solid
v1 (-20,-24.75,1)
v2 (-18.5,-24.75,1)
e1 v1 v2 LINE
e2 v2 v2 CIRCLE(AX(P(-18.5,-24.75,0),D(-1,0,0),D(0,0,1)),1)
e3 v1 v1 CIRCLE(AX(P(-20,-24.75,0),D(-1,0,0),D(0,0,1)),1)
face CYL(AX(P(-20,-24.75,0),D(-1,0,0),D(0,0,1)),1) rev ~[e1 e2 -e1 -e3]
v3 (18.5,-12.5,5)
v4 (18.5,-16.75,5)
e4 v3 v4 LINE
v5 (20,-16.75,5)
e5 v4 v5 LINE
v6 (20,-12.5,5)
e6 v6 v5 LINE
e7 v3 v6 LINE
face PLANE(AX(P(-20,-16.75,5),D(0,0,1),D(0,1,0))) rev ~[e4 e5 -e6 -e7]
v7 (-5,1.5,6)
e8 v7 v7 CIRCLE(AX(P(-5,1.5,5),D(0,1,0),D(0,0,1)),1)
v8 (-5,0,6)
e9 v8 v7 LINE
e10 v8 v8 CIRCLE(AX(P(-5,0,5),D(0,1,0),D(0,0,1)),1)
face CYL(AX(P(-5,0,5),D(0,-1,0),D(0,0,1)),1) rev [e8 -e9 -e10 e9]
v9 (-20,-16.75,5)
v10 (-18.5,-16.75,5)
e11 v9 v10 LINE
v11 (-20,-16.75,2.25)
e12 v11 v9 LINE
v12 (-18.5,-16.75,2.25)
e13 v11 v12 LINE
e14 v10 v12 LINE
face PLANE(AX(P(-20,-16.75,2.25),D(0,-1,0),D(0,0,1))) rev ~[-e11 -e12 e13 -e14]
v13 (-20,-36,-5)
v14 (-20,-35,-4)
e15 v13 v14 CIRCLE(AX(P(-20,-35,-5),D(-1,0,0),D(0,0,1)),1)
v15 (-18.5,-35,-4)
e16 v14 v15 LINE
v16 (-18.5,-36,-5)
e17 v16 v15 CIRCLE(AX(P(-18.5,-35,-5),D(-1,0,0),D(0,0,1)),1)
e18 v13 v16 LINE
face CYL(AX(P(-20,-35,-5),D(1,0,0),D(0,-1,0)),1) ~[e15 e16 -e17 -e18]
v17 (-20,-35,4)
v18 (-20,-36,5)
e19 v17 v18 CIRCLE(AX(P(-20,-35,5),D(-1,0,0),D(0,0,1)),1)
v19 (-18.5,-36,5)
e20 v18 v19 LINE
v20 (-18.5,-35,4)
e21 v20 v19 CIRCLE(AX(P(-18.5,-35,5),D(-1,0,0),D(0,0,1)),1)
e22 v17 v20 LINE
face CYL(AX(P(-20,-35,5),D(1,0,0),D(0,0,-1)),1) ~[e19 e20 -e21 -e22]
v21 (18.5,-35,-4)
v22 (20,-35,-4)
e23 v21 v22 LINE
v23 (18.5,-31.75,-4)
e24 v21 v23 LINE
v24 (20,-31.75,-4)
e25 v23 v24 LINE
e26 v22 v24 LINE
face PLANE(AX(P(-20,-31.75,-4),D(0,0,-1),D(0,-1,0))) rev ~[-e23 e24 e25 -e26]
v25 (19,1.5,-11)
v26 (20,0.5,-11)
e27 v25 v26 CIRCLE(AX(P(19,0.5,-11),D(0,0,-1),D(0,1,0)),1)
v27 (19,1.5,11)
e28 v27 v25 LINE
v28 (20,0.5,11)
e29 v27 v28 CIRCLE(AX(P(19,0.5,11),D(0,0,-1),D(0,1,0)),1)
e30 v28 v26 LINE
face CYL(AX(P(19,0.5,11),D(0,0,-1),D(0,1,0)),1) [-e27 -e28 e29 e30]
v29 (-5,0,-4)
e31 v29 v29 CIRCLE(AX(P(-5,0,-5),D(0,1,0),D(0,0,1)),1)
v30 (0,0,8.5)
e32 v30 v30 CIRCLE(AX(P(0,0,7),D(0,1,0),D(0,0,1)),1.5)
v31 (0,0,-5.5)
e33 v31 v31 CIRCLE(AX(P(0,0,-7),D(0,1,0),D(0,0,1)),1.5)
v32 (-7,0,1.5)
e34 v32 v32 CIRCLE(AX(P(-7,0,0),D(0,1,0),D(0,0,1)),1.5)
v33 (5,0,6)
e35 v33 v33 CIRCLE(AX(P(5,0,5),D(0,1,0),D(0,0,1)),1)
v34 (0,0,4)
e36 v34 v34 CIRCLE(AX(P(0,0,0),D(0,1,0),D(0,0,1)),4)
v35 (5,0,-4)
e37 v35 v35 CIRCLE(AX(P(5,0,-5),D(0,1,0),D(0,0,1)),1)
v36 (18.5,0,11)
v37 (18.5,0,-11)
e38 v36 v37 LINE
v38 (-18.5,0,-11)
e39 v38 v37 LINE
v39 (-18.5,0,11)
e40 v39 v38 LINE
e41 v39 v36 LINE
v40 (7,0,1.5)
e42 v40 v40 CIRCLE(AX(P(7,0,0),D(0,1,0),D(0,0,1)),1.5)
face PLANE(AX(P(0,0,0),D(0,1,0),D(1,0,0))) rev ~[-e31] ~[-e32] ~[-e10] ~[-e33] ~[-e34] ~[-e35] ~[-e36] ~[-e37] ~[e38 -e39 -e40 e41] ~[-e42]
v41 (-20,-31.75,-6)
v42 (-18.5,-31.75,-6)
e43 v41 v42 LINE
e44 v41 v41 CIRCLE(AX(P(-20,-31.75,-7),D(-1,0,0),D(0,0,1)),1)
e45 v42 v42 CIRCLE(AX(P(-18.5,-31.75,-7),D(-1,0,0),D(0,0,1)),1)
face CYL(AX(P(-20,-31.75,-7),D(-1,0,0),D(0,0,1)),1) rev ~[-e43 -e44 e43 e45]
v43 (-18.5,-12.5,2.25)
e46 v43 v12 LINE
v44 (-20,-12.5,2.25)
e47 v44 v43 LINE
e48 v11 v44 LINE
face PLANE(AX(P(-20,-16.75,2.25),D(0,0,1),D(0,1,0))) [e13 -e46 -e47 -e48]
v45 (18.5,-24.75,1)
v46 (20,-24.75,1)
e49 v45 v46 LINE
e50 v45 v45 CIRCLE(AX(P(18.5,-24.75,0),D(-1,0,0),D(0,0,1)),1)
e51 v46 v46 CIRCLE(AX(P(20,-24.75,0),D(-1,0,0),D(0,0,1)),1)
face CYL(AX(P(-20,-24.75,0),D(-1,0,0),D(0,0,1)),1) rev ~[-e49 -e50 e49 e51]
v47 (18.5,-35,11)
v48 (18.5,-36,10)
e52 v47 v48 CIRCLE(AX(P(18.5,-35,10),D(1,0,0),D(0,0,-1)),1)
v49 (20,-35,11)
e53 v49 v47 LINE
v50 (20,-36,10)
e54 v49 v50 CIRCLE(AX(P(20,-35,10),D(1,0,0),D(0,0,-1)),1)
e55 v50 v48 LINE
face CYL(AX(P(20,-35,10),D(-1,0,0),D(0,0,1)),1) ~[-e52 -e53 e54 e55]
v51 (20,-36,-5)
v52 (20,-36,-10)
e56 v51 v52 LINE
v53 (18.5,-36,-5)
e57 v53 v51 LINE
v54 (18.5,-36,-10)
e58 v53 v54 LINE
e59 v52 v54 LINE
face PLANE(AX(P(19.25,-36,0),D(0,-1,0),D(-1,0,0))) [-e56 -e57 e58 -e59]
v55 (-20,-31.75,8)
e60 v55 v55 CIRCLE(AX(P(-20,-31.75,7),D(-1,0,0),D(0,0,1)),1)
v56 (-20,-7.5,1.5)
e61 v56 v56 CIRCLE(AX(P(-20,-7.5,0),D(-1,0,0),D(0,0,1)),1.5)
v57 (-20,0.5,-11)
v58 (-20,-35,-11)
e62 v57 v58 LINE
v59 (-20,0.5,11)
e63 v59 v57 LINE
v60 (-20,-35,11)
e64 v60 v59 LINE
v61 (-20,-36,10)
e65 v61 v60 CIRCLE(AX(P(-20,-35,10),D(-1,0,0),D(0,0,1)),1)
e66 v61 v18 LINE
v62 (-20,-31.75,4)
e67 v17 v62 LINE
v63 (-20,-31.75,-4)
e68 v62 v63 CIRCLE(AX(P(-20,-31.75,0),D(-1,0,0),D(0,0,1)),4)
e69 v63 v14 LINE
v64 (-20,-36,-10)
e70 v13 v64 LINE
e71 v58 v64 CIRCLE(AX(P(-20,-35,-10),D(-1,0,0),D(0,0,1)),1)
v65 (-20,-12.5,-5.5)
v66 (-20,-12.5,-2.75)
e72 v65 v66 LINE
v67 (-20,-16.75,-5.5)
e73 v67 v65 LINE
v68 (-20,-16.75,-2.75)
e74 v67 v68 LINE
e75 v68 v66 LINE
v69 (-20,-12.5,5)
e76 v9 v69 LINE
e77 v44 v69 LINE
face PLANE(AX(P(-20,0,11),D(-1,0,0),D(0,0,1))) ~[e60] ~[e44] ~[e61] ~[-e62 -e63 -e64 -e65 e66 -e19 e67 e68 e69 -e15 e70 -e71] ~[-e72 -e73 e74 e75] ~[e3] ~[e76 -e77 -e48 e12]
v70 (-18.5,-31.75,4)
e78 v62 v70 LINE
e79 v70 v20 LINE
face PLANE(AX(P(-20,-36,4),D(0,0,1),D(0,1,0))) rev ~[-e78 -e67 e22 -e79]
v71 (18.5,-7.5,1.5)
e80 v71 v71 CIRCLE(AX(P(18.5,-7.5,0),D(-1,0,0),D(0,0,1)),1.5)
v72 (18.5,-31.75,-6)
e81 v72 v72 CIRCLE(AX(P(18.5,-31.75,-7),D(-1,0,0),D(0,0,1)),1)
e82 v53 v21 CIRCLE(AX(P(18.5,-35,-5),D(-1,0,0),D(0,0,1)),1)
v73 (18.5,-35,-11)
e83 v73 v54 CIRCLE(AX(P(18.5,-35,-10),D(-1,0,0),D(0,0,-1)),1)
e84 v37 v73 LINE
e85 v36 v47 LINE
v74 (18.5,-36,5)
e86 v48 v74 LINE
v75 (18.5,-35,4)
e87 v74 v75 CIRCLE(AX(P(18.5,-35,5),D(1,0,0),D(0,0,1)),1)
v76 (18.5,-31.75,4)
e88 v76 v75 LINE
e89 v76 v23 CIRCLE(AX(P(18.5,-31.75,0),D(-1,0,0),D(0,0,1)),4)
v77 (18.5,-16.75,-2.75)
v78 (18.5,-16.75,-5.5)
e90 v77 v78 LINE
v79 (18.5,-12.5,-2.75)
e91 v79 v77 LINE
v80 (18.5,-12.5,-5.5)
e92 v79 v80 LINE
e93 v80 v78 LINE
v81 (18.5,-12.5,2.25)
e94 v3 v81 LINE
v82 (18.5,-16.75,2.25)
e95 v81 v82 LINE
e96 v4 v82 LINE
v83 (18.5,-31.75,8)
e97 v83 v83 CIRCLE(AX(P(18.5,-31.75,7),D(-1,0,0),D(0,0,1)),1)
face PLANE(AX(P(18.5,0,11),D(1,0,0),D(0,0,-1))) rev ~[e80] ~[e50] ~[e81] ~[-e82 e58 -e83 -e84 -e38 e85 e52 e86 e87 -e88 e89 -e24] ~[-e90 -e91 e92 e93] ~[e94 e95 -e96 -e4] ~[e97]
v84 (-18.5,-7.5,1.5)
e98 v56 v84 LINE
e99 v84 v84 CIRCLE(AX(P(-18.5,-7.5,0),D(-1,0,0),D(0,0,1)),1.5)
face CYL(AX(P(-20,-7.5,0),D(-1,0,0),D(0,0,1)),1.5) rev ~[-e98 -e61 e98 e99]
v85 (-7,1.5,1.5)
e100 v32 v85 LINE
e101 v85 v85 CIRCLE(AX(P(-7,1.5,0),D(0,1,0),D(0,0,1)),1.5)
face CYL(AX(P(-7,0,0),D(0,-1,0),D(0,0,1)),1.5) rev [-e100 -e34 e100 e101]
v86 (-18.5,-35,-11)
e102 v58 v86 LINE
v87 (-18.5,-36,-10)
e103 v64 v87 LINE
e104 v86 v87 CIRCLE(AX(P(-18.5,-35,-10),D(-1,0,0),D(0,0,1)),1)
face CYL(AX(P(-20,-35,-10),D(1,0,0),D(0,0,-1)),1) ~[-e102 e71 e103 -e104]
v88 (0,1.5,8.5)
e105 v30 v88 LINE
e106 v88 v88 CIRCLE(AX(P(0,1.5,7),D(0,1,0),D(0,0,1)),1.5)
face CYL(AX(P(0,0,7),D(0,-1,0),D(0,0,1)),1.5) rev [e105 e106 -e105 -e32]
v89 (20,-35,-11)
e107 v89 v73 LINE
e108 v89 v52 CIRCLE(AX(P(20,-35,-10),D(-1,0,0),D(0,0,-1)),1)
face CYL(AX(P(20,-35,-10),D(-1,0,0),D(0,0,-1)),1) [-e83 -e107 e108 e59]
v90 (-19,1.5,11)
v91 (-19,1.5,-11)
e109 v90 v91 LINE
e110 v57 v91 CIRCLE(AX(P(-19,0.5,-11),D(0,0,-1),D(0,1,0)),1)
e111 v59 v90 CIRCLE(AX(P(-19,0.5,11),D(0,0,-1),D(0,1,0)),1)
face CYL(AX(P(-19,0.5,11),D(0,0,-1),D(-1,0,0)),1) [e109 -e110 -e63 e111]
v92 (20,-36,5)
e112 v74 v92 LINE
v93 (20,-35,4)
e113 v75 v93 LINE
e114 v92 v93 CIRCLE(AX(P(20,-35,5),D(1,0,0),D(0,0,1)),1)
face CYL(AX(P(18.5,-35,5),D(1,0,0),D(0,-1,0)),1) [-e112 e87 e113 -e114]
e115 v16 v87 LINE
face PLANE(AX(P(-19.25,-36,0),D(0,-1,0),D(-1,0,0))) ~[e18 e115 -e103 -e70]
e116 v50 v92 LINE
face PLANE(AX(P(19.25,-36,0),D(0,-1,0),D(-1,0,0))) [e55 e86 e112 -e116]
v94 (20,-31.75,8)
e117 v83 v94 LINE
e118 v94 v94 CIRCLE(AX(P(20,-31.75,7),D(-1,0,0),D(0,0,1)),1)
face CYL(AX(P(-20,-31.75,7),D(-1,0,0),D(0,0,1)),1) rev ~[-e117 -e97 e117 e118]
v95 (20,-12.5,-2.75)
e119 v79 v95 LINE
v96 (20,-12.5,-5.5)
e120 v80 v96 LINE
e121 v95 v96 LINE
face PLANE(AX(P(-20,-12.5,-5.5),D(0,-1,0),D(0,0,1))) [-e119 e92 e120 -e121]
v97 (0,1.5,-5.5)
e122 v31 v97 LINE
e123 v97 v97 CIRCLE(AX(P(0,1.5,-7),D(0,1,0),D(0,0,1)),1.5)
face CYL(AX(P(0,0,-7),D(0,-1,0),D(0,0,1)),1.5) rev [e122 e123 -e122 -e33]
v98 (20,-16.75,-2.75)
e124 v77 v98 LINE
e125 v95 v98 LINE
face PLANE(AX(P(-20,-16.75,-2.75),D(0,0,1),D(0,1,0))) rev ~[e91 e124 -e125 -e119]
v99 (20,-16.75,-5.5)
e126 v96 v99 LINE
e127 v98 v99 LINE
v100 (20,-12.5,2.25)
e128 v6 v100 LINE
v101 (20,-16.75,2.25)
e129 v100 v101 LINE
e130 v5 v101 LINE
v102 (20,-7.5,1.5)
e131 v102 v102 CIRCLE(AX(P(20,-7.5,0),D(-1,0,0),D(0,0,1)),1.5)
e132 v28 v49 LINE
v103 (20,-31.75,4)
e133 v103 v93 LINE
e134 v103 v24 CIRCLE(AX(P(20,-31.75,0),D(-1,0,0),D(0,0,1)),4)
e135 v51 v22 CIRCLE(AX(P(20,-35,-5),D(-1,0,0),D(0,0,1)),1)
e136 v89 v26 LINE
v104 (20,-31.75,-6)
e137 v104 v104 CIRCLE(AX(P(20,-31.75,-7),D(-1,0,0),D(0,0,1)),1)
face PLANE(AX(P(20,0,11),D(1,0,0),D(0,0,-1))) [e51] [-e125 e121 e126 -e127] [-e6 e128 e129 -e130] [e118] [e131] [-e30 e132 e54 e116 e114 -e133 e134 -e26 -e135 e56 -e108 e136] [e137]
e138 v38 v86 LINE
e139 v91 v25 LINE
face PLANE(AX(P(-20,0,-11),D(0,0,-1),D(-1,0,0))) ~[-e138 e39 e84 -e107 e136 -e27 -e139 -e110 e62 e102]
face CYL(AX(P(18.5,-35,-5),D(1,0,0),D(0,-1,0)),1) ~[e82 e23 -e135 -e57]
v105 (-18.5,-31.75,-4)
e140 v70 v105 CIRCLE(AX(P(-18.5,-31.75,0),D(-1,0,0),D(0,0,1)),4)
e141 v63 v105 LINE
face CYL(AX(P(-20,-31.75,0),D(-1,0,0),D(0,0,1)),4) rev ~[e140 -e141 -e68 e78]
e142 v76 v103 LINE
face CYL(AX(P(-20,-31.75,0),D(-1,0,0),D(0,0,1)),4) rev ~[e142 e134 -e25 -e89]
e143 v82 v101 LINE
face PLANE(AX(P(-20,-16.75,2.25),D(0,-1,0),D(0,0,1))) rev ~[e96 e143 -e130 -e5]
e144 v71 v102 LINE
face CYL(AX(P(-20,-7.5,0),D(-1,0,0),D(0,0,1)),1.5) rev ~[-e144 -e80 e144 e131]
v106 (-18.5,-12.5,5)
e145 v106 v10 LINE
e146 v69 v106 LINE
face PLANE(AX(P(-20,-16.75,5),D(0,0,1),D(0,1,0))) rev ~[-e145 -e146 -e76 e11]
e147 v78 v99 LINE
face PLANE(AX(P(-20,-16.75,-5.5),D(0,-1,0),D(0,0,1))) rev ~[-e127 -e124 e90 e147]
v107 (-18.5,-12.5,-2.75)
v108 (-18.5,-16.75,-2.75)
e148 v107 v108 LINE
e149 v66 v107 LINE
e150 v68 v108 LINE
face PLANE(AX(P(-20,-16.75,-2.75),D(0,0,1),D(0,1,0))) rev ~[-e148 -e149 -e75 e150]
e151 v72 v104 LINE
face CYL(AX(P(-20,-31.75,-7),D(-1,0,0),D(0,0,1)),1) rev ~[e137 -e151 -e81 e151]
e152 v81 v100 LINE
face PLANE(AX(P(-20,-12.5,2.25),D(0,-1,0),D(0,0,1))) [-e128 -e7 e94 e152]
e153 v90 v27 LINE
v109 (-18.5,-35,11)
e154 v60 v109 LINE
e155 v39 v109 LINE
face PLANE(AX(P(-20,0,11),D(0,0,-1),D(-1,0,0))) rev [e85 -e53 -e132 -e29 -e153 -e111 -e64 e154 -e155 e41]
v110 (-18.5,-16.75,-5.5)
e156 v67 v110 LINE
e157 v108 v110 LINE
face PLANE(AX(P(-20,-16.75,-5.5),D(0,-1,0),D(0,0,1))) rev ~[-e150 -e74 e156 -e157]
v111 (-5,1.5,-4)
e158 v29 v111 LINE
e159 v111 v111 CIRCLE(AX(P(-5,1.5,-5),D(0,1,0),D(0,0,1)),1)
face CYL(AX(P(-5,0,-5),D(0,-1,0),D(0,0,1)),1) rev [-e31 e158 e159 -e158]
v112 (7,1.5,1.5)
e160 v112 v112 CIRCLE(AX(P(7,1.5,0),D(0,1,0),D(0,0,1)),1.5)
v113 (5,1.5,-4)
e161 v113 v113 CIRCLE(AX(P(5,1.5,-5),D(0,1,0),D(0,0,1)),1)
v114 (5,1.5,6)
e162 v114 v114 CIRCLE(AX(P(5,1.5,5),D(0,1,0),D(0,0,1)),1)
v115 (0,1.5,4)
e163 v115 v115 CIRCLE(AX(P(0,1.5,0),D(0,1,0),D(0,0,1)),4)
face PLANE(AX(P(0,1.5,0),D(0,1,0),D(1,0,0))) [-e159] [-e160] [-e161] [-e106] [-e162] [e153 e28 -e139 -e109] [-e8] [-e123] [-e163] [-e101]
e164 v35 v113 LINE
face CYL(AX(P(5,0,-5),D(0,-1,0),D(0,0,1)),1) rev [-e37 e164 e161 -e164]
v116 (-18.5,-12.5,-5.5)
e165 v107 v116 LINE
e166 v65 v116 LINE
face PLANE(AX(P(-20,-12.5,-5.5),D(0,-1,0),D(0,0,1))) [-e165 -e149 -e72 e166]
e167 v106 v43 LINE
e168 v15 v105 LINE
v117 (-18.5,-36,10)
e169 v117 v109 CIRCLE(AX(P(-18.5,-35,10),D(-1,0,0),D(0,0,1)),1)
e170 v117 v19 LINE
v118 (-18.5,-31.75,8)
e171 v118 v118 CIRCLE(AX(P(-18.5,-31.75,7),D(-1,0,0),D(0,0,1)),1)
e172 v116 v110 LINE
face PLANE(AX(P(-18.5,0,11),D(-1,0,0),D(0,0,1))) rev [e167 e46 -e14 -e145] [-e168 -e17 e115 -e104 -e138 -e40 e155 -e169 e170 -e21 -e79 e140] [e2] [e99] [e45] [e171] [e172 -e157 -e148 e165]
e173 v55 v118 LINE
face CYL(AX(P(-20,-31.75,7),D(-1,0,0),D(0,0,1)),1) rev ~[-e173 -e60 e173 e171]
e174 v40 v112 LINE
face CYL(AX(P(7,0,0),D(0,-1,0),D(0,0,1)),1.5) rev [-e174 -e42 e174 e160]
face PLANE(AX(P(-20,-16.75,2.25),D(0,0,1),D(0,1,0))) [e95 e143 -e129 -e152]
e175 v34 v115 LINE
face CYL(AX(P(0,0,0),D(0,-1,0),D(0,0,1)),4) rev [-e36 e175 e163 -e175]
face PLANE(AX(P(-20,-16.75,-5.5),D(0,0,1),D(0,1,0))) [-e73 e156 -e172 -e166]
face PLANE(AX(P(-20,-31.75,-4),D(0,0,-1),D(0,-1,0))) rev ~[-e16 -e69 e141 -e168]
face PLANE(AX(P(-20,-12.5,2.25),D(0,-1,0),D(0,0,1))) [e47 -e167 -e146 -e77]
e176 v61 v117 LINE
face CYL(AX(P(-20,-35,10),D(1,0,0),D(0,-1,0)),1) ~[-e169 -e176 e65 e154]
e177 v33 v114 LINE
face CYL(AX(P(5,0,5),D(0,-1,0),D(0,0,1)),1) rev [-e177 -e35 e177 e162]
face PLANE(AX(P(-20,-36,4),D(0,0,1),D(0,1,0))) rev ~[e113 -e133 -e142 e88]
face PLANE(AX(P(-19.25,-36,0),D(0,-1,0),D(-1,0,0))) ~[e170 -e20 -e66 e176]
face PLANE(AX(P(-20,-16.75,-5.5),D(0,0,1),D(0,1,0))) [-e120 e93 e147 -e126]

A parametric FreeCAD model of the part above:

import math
import FreeCAD as App
import Part
import Sketcher
from FreeCAD import Vector
Q = App.Units.Quantity


def edges_at(feature, points):
    """Names of the edges that pass closest to the given points."""
    edges = feature.Shape.Edges
    near = lambda p: min(range(len(edges)), key=lambda i: edges[i].distToShape(Part.Vertex(*p))[0])
    return sorted({f"Edge{near(p) + 1}" for p in points})


def add_polygon(sketch, points):
    """Adds a closed chain of lines whose ends are joined by coincident constraints."""
    first, n = sketch.GeometryCount, len(points)
    for a, b in zip(points, points[1:] + points[:1]):
        sketch.addGeometry(Part.LineSegment(App.Vector(*a, 0), App.Vector(*b, 0)), False)
    for i in range(n):
        sketch.addConstraint(Sketcher.Constraint("Coincident", first + i, 2, first + (i + 1) % n, 1))

doc = App.newDocument("Part")
body = doc.addObject("PartDesign::Body", "Body")

sketch1 = body.newObject("Sketcher::SketchObject", "Sketch")
sketch1.AttachmentSupport = (doc.getObject("XZ_Plane"), [""])
sketch1.MapMode = "FlatFace"
add_polygon(sketch1, [(-20, -11), (-20, 11), (20, 11), (20, -11)])
sketch1.addGeometry(Part.Circle(Vector(-5, 5, 0), Vector(0, 0, 1), 1), False)
sketch1.addGeometry(Part.Circle(Vector(0, 7, 0), Vector(0, 0, 1), 1.5), False)
sketch1.addGeometry(Part.Circle(Vector(5, 5, 0), Vector(0, 0, 1), 1), False)
sketch1.addGeometry(Part.Circle(Vector(-7, 0, 0), Vector(0, 0, 1), 1.5), False)
sketch1.addGeometry(Part.Circle(Vector(-5, -5, 0), Vector(0, 0, 1), 1), False)
sketch1.addGeometry(Part.Circle(Vector(0, 0, 0), Vector(0, 0, 1), 4), False)
sketch1.addGeometry(Part.Circle(Vector(7, 0, 0), Vector(0, 0, 1), 1.5), False)
sketch1.addGeometry(Part.Circle(Vector(0, -7, 0), Vector(0, 0, 1), 1.5), False)
sketch1.addGeometry(Part.Circle(Vector(5, -5, 0), Vector(0, 0, 1), 1), False)
sketch1.addConstraint([
    Sketcher.Constraint("Vertical", 0),
    Sketcher.Constraint("Horizontal", 1),
    Sketcher.Constraint("Vertical", 2),
    Sketcher.Constraint("Horizontal", 3),
    Sketcher.Constraint("Coincident", 9, 3, -1, 1),
    Sketcher.Constraint("Equal", 4, 6),
    Sketcher.Constraint("Equal", 5, 7),
    Sketcher.Constraint("Equal", 6, 8),
    Sketcher.Constraint("Equal", 7, 10),
    Sketcher.Constraint("Equal", 10, 11),
    Sketcher.Constraint("Equal", 8, 12),
    Sketcher.Constraint("Symmetric", 6, 3, 8, 3, -1, 1),
    Sketcher.Constraint("Symmetric", 7, 3, 10, 3, -1, 1),
    Sketcher.Constraint("Symmetric", 5, 3, 11, 3, -1, 1),
    Sketcher.Constraint("Symmetric", 4, 3, 12, 3, -1, 1),
    Sketcher.Constraint("Symmetric", 0, 2, 2, 2, -1, 1),
    Sketcher.Constraint("Symmetric", 4, 3, 6, 3, -2),
    Sketcher.Constraint("PointOnObject", 5, 3, -2),
    Sketcher.Constraint("PointOnObject", 7, 3, -1),
    Sketcher.Constraint("Diameter", 4, Q("2 mm")),
    Sketcher.Constraint("Diameter", 5, Q("3 mm")),
    Sketcher.Constraint("Diameter", 9, Q("8 mm")),
    Sketcher.Constraint("DistanceX", 1, 1, 1, 2, Q("40 mm")),
    Sketcher.Constraint("DistanceY", 0, 1, 0, 2, Q("22 mm")),
    Sketcher.Constraint("DistanceX", 4, 3, -1, 1, Q("5 mm")),
    Sketcher.Constraint("DistanceY", -1, 1, 4, 3, Q("5 mm")),
    Sketcher.Constraint("DistanceY", -1, 1, 5, 3, Q("7 mm")),
    Sketcher.Constraint("DistanceX", 7, 3, -1, 1, Q("7 mm")),
])
pad1 = body.newObject("PartDesign::Pad", "Pad")
pad1.Profile = sketch1
pad1.Length = 1.5
pad1.Reversed = True

sketch2 = body.newObject("Sketcher::SketchObject", "Sketch001")
sketch2.AttachmentSupport = (doc.getObject("XZ_Plane"), [""])
sketch2.MapMode = "FlatFace"
add_polygon(sketch2, [(20, -11), (20, 11), (18.5, 11), (18.5, -11)])
sketch2.addConstraint([
    Sketcher.Constraint("Vertical", 0),
    Sketcher.Constraint("Horizontal", 1),
    Sketcher.Constraint("Vertical", 2),
    Sketcher.Constraint("Horizontal", 3),
    Sketcher.Constraint("DistanceY", 0, 1, 0, 2, Q("22 mm")),
    Sketcher.Constraint("DistanceX", 1, 2, 1, 1, Q("1.5 mm")),
    Sketcher.Constraint("DistanceX", -1, 1, 0, 2, Q("20 mm")),
    Sketcher.Constraint("DistanceY", -1, 1, 0, 2, Q("11 mm")),
])
pad2 = body.newObject("PartDesign::Pad", "Pad001")
pad2.Profile = sketch2
pad2.Length = 36
doc.recompute()

mirrored = body.newObject("PartDesign::Mirrored", "Mirrored")
mirrored.Originals = [pad2]
mirrored.MirrorPlane = (doc.getObject("YZ_Plane"), [""])
body.Tip = mirrored
doc.recompute()

fillet = body.newObject("PartDesign::Fillet", "Fillet")
fillet.Base = (mirrored, edges_at(mirrored, [(-20, 1.5, 0), (20, 1.5, 0)]))
fillet.Radius = 1

sketch3 = body.newObject("Sketcher::SketchObject", "Sketch002")
sketch3.AttachmentSupport = (doc.getObject("YZ_Plane"), [""])
sketch3.MapMode = "FlatFace"
sketch3.AttachmentOffset = App.Placement(Vector(0, 0, -20), App.Rotation())
sketch3.addGeometry(Part.Circle(Vector(-7.5, 0, 0), Vector(0, 0, 1), 1.5), False)
sketch3.addGeometry(Part.Circle(Vector(-24.8, 0, 0), Vector(0, 0, 1), 1), False)
sketch3.addGeometry(Part.Circle(Vector(-31.8, -7, 0), Vector(0, 0, 1), 1), False)
sketch3.addGeometry(Part.Circle(Vector(-31.8, 7, 0), Vector(0, 0, 1), 1), False)
sketch3.addGeometry(Part.LineSegment(Vector(-31.8, -4, 0), Vector(-36, -4, 0)), False)
sketch3.addGeometry(Part.LineSegment(Vector(-36, -4, 0), Vector(-36, 4, 0)), False)
sketch3.addGeometry(Part.LineSegment(Vector(-36, 4, 0), Vector(-31.8, 4, 0)), False)
sketch3.addGeometry(Part.ArcOfCircle(Part.Circle(Vector(-31.8, 0, 0), Vector(0, 0, 1), 4), math.radians(-90), math.radians(90)), False)
add_polygon(sketch3, [(-12.5, -5.5), (-16.8, -5.5), (-16.8, -2.8), (-12.5, -2.8)])
add_polygon(sketch3, [(-12.5, 2.2), (-16.8, 2.2), (-16.8, 5), (-12.5, 5)])
sketch3.addConstraint([
    Sketcher.Constraint("Coincident", 4, 2, 5, 1),
    Sketcher.Constraint("Coincident", 5, 2, 6, 1),
    Sketcher.Constraint("Tangent", 6, 2, 7, 2),
    Sketcher.Constraint("Tangent", 7, 1, 4, 1),
    Sketcher.Constraint("Horizontal", 4),
    Sketcher.Constraint("Vertical", 5),
    Sketcher.Constraint("Horizontal", 6),
    Sketcher.Constraint("Horizontal", 8),
    Sketcher.Constraint("Vertical", 9),
    Sketcher.Constraint("Horizontal", 10),
    Sketcher.Constraint("Vertical", 11),
    Sketcher.Constraint("Horizontal", 12),
    Sketcher.Constraint("Vertical", 13),
    Sketcher.Constraint("Horizontal", 14),
    Sketcher.Constraint("Vertical", 15),
    Sketcher.Constraint("Equal", 1, 2),
    Sketcher.Constraint("Equal", 2, 3),
    Sketcher.Constraint("Symmetric", 2, 3, 3, 3, -1),
    Sketcher.Constraint("PointOnObject", 0, 3, -1),
    Sketcher.Constraint("PointOnObject", 1, 3, -1),
    Sketcher.Constraint("PointOnObject", 7, 3, -1),
    Sketcher.Constraint("Vertical", 3, 3, 7, 3),
    Sketcher.Constraint("Vertical", 9, 2, 12, 2),
    Sketcher.Constraint("Vertical", 11, 2, 14, 2),
    Sketcher.Constraint("Equal", 6, 8),
    Sketcher.Constraint("Equal", 11, 13),
    Sketcher.Constraint("Diameter", 0, Q("3 mm")),
    Sketcher.Constraint("Diameter", 1, Q("2 mm")),
    Sketcher.Constraint("Radius", 7, Q("4 mm")),
    Sketcher.Constraint("DistanceY", 2, 3, -1, 1, Q("7 mm")),
    Sketcher.Constraint("DistanceX", 4, 2, -1, 1, Q("36 mm")),
    Sketcher.Constraint("DistanceY", -1, 1, 13, 2, Q("5 mm")),
    Sketcher.Constraint("DistanceX", 2, 3, 1, 3, Q("7 mm")),
    Sketcher.Constraint("DistanceX", 1, 3, 8, 2, Q("8 mm")),
    Sketcher.Constraint("DistanceX", 10, 2, 0, 3, Q("5 mm")),
    Sketcher.Constraint("DistanceY", 9, 2, 12, 2, Q("5 mm")),
    Sketcher.Constraint("DistanceX", 4, 2, 4, 1, Q("4.25 mm")),
    Sketcher.Constraint("DistanceY", 9, 1, 9, 2, Q("2.75 mm")),
])
pocket1 = body.newObject("PartDesign::Pocket", "Pocket")
pocket1.Profile = sketch3
pocket1.Type = "ThroughAll"
pocket1.Reversed = True
doc.recompute()

fillet2 = body.newObject("PartDesign::Fillet", "Fillet001")
fillet2.Base = (pocket1, edges_at(pocket1, [
    (-19.25, -36, -4),
    (-19.25, -36, 4),
    (19.25, -36, 4),
    (19.25, -36, -4),
    (19.25, -36, 11),
    (19.25, -36, -11),
    (-19.25, -36, -11),
    (-19.25, -36, 11),
]))
fillet2.Radius = 1

doc.recompute()
